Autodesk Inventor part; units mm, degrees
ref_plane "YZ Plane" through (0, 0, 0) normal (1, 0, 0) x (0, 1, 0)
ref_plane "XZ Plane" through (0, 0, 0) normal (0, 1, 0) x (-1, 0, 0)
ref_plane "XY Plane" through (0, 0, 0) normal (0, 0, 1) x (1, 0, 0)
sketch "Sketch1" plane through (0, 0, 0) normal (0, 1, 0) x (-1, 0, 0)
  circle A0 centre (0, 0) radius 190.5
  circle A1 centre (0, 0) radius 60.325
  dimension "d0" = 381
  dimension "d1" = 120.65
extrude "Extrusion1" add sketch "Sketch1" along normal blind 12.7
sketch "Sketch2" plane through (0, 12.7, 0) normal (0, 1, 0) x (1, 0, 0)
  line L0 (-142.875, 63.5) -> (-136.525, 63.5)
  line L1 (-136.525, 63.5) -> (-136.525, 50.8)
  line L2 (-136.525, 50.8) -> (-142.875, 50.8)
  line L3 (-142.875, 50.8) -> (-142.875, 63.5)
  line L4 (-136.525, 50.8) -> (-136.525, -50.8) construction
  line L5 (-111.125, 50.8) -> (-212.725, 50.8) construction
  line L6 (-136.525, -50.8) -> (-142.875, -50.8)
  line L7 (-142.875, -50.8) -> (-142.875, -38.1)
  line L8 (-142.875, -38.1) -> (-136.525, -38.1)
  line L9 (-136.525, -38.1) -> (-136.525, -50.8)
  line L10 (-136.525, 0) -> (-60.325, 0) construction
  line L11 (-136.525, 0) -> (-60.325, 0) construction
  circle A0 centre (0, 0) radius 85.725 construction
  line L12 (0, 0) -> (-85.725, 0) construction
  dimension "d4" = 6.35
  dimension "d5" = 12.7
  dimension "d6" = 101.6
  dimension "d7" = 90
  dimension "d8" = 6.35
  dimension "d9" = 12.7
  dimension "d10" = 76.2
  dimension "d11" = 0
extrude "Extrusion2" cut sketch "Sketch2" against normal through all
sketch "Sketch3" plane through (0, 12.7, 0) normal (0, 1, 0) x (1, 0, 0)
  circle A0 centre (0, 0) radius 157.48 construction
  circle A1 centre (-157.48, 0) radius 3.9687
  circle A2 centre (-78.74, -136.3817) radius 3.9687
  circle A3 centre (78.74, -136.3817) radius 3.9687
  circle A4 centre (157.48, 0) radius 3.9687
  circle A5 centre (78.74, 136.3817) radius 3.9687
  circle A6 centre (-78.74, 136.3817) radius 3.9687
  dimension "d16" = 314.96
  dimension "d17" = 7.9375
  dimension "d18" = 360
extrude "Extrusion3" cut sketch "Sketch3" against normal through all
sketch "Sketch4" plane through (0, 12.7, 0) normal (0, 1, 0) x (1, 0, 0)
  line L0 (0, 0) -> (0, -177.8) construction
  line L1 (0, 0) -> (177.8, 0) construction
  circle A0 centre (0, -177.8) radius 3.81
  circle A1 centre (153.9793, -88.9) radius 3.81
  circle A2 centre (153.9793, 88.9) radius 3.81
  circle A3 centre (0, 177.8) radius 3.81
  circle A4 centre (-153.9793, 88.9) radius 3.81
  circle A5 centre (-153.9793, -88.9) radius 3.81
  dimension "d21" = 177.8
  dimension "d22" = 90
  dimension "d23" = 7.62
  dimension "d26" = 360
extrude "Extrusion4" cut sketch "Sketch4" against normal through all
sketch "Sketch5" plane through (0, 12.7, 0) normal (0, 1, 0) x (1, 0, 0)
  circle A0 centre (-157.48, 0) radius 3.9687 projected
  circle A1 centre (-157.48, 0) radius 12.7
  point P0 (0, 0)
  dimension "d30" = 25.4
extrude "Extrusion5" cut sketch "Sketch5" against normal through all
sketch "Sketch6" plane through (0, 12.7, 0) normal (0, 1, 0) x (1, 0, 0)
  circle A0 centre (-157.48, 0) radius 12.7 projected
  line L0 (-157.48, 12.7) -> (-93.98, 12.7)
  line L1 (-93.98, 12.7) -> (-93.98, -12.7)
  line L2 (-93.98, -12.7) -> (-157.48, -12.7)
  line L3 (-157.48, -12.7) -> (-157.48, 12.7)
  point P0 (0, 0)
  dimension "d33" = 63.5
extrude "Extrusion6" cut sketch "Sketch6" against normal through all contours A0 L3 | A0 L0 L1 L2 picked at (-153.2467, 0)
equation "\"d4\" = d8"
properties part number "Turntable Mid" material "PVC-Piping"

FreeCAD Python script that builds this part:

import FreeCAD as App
import Part
import Sketcher
Q = App.Units.Quantity


def add_polygon(sketch, points):
    """Adds a closed chain of lines whose ends are joined by coincident constraints."""
    first, n = sketch.GeometryCount, len(points)
    for a, b in zip(points, points[1:] + points[:1]):
        sketch.addGeometry(Part.LineSegment(App.Vector(*a, 0), App.Vector(*b, 0)), False)
    for i in range(n):
        sketch.addConstraint(Sketcher.Constraint("Coincident", first + i, 2, first + (i + 1) % n, 1))

doc = App.newDocument("Part")
body = doc.addObject("PartDesign::Body", "Body")

# Sketch on XZ plane
sketch1 = body.newObject("Sketcher::SketchObject", "Sketch")
sketch1.AttachmentSupport = (doc.getObject("XZ_Plane"), [""])
sketch1.MapMode = "FlatFace"
sketch1.addGeometry([
    Part.Circle(App.Vector(0, 0, 0), App.Vector(0, 0, 1), 190),
    Part.Circle(App.Vector(0, 0, 0), App.Vector(0, 0, 1), 60),
], False)
sketch1.addConstraint([
    Sketcher.Constraint("Coincident", 0, 3, -1, 1),
    Sketcher.Constraint("Coincident", 1, 3, -1, 1),
    Sketcher.Constraint("Diameter", 0, Q("15 in")),
    Sketcher.Constraint("Diameter", 1, Q("4.75 in")),
])
pad1 = body.newObject("PartDesign::Pad", "Pad")
pad1.Profile = sketch1
pad1.Length = Q("0.5 in")
pad1.Reversed = True

# Sketch on XZ plane
sketch2 = body.newObject("Sketcher::SketchObject", "Sketch001")
sketch2.AttachmentSupport = (doc.getObject("XZ_Plane"), [""])
sketch2.MapMode = "FlatFace"
sketch2.AttachmentOffset = App.Placement(App.Vector(0, 0, -0.5 * 25.4), App.Rotation())
add_polygon(sketch2, [(-137, -64), (-143, -64), (-143, -51), (-137, -51)])  # lines 0-3
add_polygon(sketch2, [(-143, 51), (-137, 51), (-137, 38), (-143, 38)])  # lines 4-7
sketch2.addConstraint([
    Sketcher.Constraint("Horizontal", 0),
    Sketcher.Constraint("Vertical", 1),
    Sketcher.Constraint("Horizontal", 2),
    Sketcher.Constraint("Vertical", 3),
    Sketcher.Constraint("Horizontal", 4),
    Sketcher.Constraint("Vertical", 5),
    Sketcher.Constraint("Horizontal", 6),
    Sketcher.Constraint("Vertical", 7),
    Sketcher.Constraint("Symmetric", 2, 2, 4, 2, -1),
    Sketcher.Constraint("Vertical", 1, 2, 6, 2),
    Sketcher.Constraint("Equal", 3, 5),
    Sketcher.Constraint("DistanceY", 1, 1, 1, 2, Q("0.5 in")),
    Sketcher.Constraint("DistanceY", 2, 2, 4, 2, Q("4 in")),
    Sketcher.Constraint("DistanceX", 0, 2, 0, 1, Q("0.25 in")),
    Sketcher.Constraint("DistanceX", 0, 2, -1, 1, Q("5.625 in")),
])
pocket1 = body.newObject("PartDesign::Pocket", "Pocket")
pocket1.Profile = sketch2
pocket1.Type = "ThroughAll"
pocket1.Reversed = True

# Sketch on XZ plane
sketch3 = body.newObject("Sketcher::SketchObject", "Sketch002")
sketch3.AttachmentSupport = (doc.getObject("XZ_Plane"), [""])
sketch3.MapMode = "FlatFace"
sketch3.AttachmentOffset = App.Placement(App.Vector(0, 0, -0.5 * 25.4), App.Rotation())
sketch3.addGeometry([
    Part.Circle(App.Vector(-157.5, 0, 0), App.Vector(0, 0, 1), 4),  # 0
    Part.Circle(App.Vector(-78.7, 136.4, 0), App.Vector(0, 0, 1), 4),  # 1
    Part.Circle(App.Vector(78.7, 136.4, 0), App.Vector(0, 0, 1), 4),  # 2
    Part.Circle(App.Vector(157.5, 0, 0), App.Vector(0, 0, 1), 4),  # 3
    Part.Circle(App.Vector(78.7, -136.4, 0), App.Vector(0, 0, 1), 4),  # 4
    Part.Circle(App.Vector(-78.7, -136.4, 0), App.Vector(0, 0, 1), 4),  # 5
], False)
sketch3.addConstraint([
    Sketcher.Constraint("Equal", 0, 1),
    Sketcher.Constraint("Equal", 1, 2),
    Sketcher.Constraint("Equal", 2, 3),
    Sketcher.Constraint("Equal", 3, 4),
    Sketcher.Constraint("Equal", 4, 5),
    Sketcher.Constraint("Symmetric", 0, 3, 3, 3, -1, 1),
    Sketcher.Constraint("Symmetric", 1, 3, 4, 3, -1, 1),
    Sketcher.Constraint("Symmetric", 2, 3, 5, 3, -1, 1),
    Sketcher.Constraint("Symmetric", 1, 3, 2, 3, -2),
    Sketcher.Constraint("PointOnObject", 0, 3, -1),
    Sketcher.Constraint("Diameter", 0, Q("0.3125 in")),
    Sketcher.Constraint("DistanceX", 0, 3, 3, 3, Q("12.4 in")),
    Sketcher.Constraint("DistanceX", 1, 3, -1, 1, Q("3.1 in")),
    Sketcher.Constraint("DistanceY", -1, 1, 1, 3, 136.3817),
])
pocket2 = body.newObject("PartDesign::Pocket", "Pocket001")
pocket2.Profile = sketch3
pocket2.Type = "ThroughAll"
pocket2.Reversed = True

# Sketch on XZ plane
sketch4 = body.newObject("Sketcher::SketchObject", "Sketch003")
sketch4.AttachmentSupport = (doc.getObject("XZ_Plane"), [""])
sketch4.MapMode = "FlatFace"
sketch4.AttachmentOffset = App.Placement(App.Vector(0, 0, -0.5 * 25.4), App.Rotation())
sketch4.addGeometry([
    Part.Circle(App.Vector(0, 177.8, 0), App.Vector(0, 0, 1), 3.8),  # 0
    Part.Circle(App.Vector(154, 88.9, 0), App.Vector(0, 0, 1), 3.8),  # 1
    Part.Circle(App.Vector(154, -88.9, 0), App.Vector(0, 0, 1), 3.8),  # 2
    Part.Circle(App.Vector(0, -177.8, 0), App.Vector(0, 0, 1), 3.8),  # 3
    Part.Circle(App.Vector(-154, -88.9, 0), App.Vector(0, 0, 1), 3.8),  # 4
    Part.Circle(App.Vector(-154, 88.9, 0), App.Vector(0, 0, 1), 3.8),  # 5
], False)
sketch4.addConstraint([
    Sketcher.Constraint("Equal", 0, 1),
    Sketcher.Constraint("Equal", 1, 2),
    Sketcher.Constraint("Equal", 2, 3),
    Sketcher.Constraint("Equal", 3, 4),
    Sketcher.Constraint("Equal", 4, 5),
    Sketcher.Constraint("Symmetric", 0, 3, 3, 3, -1, 1),
    Sketcher.Constraint("Symmetric", 1, 3, 4, 3, -1, 1),
    Sketcher.Constraint("Symmetric", 2, 3, 5, 3, -1, 1),
    Sketcher.Constraint("Symmetric", 2, 3, 4, 3, -2),
    Sketcher.Constraint("PointOnObject", 0, 3, -2),
    Sketcher.Constraint("Diameter", 0, Q("0.3 in")),
    Sketcher.Constraint("DistanceY", -1, 1, 0, 3, Q("7 in")),
    Sketcher.Constraint("DistanceY", 2, 3, 1, 3, Q("7 in")),
    Sketcher.Constraint("DistanceX", -1, 1, 1, 3, 153.9793),
])
pocket3 = body.newObject("PartDesign::Pocket", "Pocket002")
pocket3.Profile = sketch4
pocket3.Type = "ThroughAll"
pocket3.Reversed = True

# Sketch on XZ plane
sketch5 = body.newObject("Sketcher::SketchObject", "Sketch004")
sketch5.AttachmentSupport = (doc.getObject("XZ_Plane"), [""])
sketch5.MapMode = "FlatFace"
sketch5.AttachmentOffset = App.Placement(App.Vector(0, 0, -0.5 * 25.4), App.Rotation())
sketch5.addGeometry([
    Part.Circle(App.Vector(-157.5, 0, 0), App.Vector(0, 0, 1), 12.7),
    Part.Circle(App.Vector(-157.5, 0, 0), App.Vector(0, 0, 1), 4),
], False)
sketch5.addConstraint([
    Sketcher.Constraint("Coincident", 1, 3, 0, 3),
    Sketcher.Constraint("PointOnObject", 0, 3, -1),
    Sketcher.Constraint("Diameter", 0, Q("1 in")),
    Sketcher.Constraint("Diameter", 1, Q("0.3125 in")),
    Sketcher.Constraint("DistanceX", 0, 3, -1, 1, Q("6.2 in")),
])
pocket4 = body.newObject("PartDesign::Pocket", "Pocket003")
pocket4.Profile = sketch5
pocket4.Type = "ThroughAll"
pocket4.Reversed = True

# Sketch on XZ plane
sketch6 = body.newObject("Sketcher::SketchObject", "Sketch005")
sketch6.AttachmentSupport = (doc.getObject("XZ_Plane"), [""])
sketch6.MapMode = "FlatFace"
sketch6.AttachmentOffset = App.Placement(App.Vector(0, 0, -0.5 * 25.4), App.Rotation())
add_polygon(sketch6, [(-157, -13), (-157, 13), (-94, 13), (-94, -13)])  # lines 0-3
sketch6.addConstraint([
    Sketcher.Constraint("Vertical", 0),
    Sketcher.Constraint("Horizontal", 1),
    Sketcher.Constraint("Vertical", 2),
    Sketcher.Constraint("Horizontal", 3),
    Sketcher.Constraint("DistanceX", 1, 1, 1, 2, Q("2.5 in")),
    Sketcher.Constraint("DistanceY", 0, 1, 0, 2, Q("1 in")),
    Sketcher.Constraint("DistanceX", 0, 2, -1, 1, Q("6.2 in")),
    Sketcher.Constraint("DistanceY", -1, 1, 0, 2, Q("0.5 in")),
])
pocket5 = body.newObject("PartDesign::Pocket", "Pocket004")
pocket5.Profile = sketch6
pocket5.Type = "ThroughAll"
pocket5.Reversed = True

doc.recompute()
